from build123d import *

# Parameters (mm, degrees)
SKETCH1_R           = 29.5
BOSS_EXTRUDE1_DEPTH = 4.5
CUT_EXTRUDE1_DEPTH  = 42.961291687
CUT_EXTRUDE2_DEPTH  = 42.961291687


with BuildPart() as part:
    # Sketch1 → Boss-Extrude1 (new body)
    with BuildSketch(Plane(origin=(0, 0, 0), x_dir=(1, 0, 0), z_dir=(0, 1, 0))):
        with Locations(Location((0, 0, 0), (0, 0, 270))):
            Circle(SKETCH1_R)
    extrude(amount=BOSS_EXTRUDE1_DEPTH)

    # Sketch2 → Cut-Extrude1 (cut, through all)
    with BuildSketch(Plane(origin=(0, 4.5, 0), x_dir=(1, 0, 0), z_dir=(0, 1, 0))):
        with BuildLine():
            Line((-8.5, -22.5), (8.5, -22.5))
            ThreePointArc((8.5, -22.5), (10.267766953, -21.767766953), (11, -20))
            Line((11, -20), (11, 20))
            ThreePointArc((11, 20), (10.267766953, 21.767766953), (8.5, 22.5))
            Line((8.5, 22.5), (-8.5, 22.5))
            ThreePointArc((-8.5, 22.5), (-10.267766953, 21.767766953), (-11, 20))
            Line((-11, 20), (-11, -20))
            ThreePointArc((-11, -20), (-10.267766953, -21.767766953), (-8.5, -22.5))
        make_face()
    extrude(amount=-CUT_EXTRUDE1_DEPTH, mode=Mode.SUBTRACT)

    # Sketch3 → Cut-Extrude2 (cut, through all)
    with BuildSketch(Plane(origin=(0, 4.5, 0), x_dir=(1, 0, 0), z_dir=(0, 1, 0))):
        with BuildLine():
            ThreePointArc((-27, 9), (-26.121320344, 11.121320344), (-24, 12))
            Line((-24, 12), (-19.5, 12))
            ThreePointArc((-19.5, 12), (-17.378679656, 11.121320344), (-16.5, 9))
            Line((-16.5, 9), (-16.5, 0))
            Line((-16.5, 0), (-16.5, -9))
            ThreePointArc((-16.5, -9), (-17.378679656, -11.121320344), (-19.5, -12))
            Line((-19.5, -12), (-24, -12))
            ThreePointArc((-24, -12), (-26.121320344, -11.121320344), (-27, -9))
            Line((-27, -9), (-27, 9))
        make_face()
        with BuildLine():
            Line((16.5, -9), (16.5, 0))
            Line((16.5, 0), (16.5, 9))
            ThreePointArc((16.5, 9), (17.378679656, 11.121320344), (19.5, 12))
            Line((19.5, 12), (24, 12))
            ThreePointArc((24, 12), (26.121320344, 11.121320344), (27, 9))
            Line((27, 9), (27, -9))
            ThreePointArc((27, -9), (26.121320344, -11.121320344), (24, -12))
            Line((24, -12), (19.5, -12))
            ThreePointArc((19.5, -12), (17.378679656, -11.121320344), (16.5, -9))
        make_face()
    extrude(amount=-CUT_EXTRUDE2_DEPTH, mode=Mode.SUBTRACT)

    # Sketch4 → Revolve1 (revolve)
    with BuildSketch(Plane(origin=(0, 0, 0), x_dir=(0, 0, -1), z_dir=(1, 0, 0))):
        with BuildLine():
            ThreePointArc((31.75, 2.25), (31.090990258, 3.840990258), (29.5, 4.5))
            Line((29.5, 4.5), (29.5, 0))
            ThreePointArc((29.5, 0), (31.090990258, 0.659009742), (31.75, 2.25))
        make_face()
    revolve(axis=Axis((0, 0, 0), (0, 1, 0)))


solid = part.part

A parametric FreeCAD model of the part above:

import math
import FreeCAD as App
import Part
import Sketcher
from FreeCAD import Vector
Q = App.Units.Quantity

doc = App.newDocument("Part")
body = doc.addObject("PartDesign::Body", "Body")

sketch1 = body.newObject("Sketcher::SketchObject", "Sketch")
sketch1.AttachmentSupport = (doc.getObject("XZ_Plane"), [""])
sketch1.MapMode = "FlatFace"
sketch1.addGeometry(Part.Circle(Vector(0, 0, 0), Vector(0, 0, 1), 30), False)
sketch1.addConstraint(Sketcher.Constraint("Coincident", 0, 3, -1, 1))
sketch1.addConstraint(Sketcher.Constraint("Diameter", 0, Q("59 mm")))
pad1 = body.newObject("PartDesign::Pad", "Pad")
pad1.Profile = sketch1
pad1.Length = 4.5
pad1.Reversed = True

sketch2 = body.newObject("Sketcher::SketchObject", "Sketch001")
sketch2.AttachmentSupport = (doc.getObject("XZ_Plane"), [""])
sketch2.MapMode = "FlatFace"
sketch2.AttachmentOffset = App.Placement(Vector(0, 0, -4.5), App.Rotation())
sketch2.addGeometry(Part.LineSegment(Vector(-8.5, 22.5, 0), Vector(8.5, 22.5, 0)), False)
sketch2.addGeometry(Part.ArcOfCircle(Part.Circle(Vector(8.5, 20, 0), Vector(0, 0, 1), 2.5), math.radians(0), math.radians(90)), False)
sketch2.addGeometry(Part.LineSegment(Vector(11, 20, 0), Vector(11, -20, 0)), False)
sketch2.addGeometry(Part.ArcOfCircle(Part.Circle(Vector(8.5, -20, 0), Vector(0, 0, 1), 2.5), math.radians(-90), math.radians(0)), False)
sketch2.addGeometry(Part.LineSegment(Vector(8.5, -22.5, 0), Vector(-8.5, -22.5, 0)), False)
sketch2.addGeometry(Part.ArcOfCircle(Part.Circle(Vector(-8.5, -20, 0), Vector(0, 0, 1), 2.5), math.radians(180), math.radians(270)), False)
sketch2.addGeometry(Part.LineSegment(Vector(-11, -20, 0), Vector(-11, 20, 0)), False)
sketch2.addGeometry(Part.ArcOfCircle(Part.Circle(Vector(-8.5, 20, 0), Vector(0, 0, 1), 2.5), math.radians(90), math.radians(180)), False)
sketch2.addConstraint(Sketcher.Constraint("Tangent", 0, 2, 1, 2))
sketch2.addConstraint(Sketcher.Constraint("Tangent", 1, 1, 2, 1))
sketch2.addConstraint(Sketcher.Constraint("Tangent", 2, 2, 3, 2))
sketch2.addConstraint(Sketcher.Constraint("Tangent", 3, 1, 4, 1))
sketch2.addConstraint(Sketcher.Constraint("Tangent", 4, 2, 5, 2))
sketch2.addConstraint(Sketcher.Constraint("Tangent", 5, 1, 6, 1))
sketch2.addConstraint(Sketcher.Constraint("Tangent", 6, 2, 7, 2))
sketch2.addConstraint(Sketcher.Constraint("Tangent", 7, 1, 0, 1))
sketch2.addConstraint(Sketcher.Constraint("Horizontal", 0))
sketch2.addConstraint(Sketcher.Constraint("Vertical", 2))
sketch2.addConstraint(Sketcher.Constraint("Horizontal", 4))
sketch2.addConstraint(Sketcher.Constraint("Vertical", 6))
sketch2.addConstraint(Sketcher.Constraint("Equal", 1, 3))
sketch2.addConstraint(Sketcher.Constraint("Equal", 3, 5))
sketch2.addConstraint(Sketcher.Constraint("Equal", 5, 7))
sketch2.addConstraint(Sketcher.Constraint("Symmetric", 1, 3, 5, 3, -1, 1))
sketch2.addConstraint(Sketcher.Constraint("Radius", 1, Q("2.5 mm")))
sketch2.addConstraint(Sketcher.Constraint("DistanceX", 0, 1, 0, 2, Q("17 mm")))
sketch2.addConstraint(Sketcher.Constraint("DistanceY", 2, 2, 2, 1, Q("40 mm")))
pocket1 = body.newObject("PartDesign::Pocket", "Pocket")
pocket1.Profile = sketch2
pocket1.Type = "ThroughAll"
pocket1.Reversed = True

sketch3 = body.newObject("Sketcher::SketchObject", "Sketch002")
sketch3.AttachmentSupport = (doc.getObject("XZ_Plane"), [""])
sketch3.MapMode = "FlatFace"
sketch3.AttachmentOffset = App.Placement(Vector(0, 0, -4.5), App.Rotation())
sketch3.addGeometry(Part.ArcOfCircle(Part.Circle(Vector(-24, -9, 0), Vector(0, 0, 1), 3), math.radians(180), math.radians(270)), False)
sketch3.addGeometry(Part.LineSegment(Vector(-27, -9, 0), Vector(-27, 9, 0)), False)
sketch3.addGeometry(Part.ArcOfCircle(Part.Circle(Vector(-24, 9, 0), Vector(0, 0, 1), 3), math.radians(90), math.radians(180)), False)
sketch3.addGeometry(Part.LineSegment(Vector(-24, 12, 0), Vector(-19.5, 12, 0)), False)
sketch3.addGeometry(Part.ArcOfCircle(Part.Circle(Vector(-19.5, 9, 0), Vector(0, 0, 1), 3), math.radians(0), math.radians(90)), False)
sketch3.addGeometry(Part.LineSegment(Vector(-16.5, 9, 0), Vector(-16.5, -9, 0)), False)
sketch3.addGeometry(Part.ArcOfCircle(Part.Circle(Vector(-19.5, -9, 0), Vector(0, 0, 1), 3), math.radians(-90), math.radians(0)), False)
sketch3.addGeometry(Part.LineSegment(Vector(-19.5, -12, 0), Vector(-24, -12, 0)), False)
sketch3.addGeometry(Part.LineSegment(Vector(16.5, -9, 0), Vector(16.5, 9, 0)), False)
sketch3.addGeometry(Part.ArcOfCircle(Part.Circle(Vector(19.5, 9, 0), Vector(0, 0, 1), 3), math.radians(90), math.radians(180)), False)
sketch3.addGeometry(Part.LineSegment(Vector(19.5, 12, 0), Vector(24, 12, 0)), False)
sketch3.addGeometry(Part.ArcOfCircle(Part.Circle(Vector(24, 9, 0), Vector(0, 0, 1), 3), math.radians(0), math.radians(90)), False)
sketch3.addGeometry(Part.LineSegment(Vector(27, 9, 0), Vector(27, -9, 0)), False)
sketch3.addGeometry(Part.ArcOfCircle(Part.Circle(Vector(24, -9, 0), Vector(0, 0, 1), 3), math.radians(-90), math.radians(0)), False)
sketch3.addGeometry(Part.LineSegment(Vector(24, -12, 0), Vector(19.5, -12, 0)), False)
sketch3.addGeometry(Part.ArcOfCircle(Part.Circle(Vector(19.5, -9, 0), Vector(0, 0, 1), 3), math.radians(180), math.radians(270)), False)
sketch3.addConstraint(Sketcher.Constraint("Tangent", 0, 1, 1, 1))
sketch3.addConstraint(Sketcher.Constraint("Tangent", 1, 2, 2, 2))
sketch3.addConstraint(Sketcher.Constraint("Tangent", 2, 1, 3, 1))
sketch3.addConstraint(Sketcher.Constraint("Tangent", 3, 2, 4, 2))
sketch3.addConstraint(Sketcher.Constraint("Tangent", 4, 1, 5, 1))
sketch3.addConstraint(Sketcher.Constraint("Tangent", 5, 2, 6, 2))
sketch3.addConstraint(Sketcher.Constraint("Tangent", 6, 1, 7, 1))
sketch3.addConstraint(Sketcher.Constraint("Tangent", 7, 2, 0, 2))
sketch3.addConstraint(Sketcher.Constraint("Tangent", 8, 2, 9, 2))
sketch3.addConstraint(Sketcher.Constraint("Tangent", 9, 1, 10, 1))
sketch3.addConstraint(Sketcher.Constraint("Tangent", 10, 2, 11, 2))
sketch3.addConstraint(Sketcher.Constraint("Tangent", 11, 1, 12, 1))
sketch3.addConstraint(Sketcher.Constraint("Tangent", 12, 2, 13, 2))
sketch3.addConstraint(Sketcher.Constraint("Tangent", 13, 1, 14, 1))
sketch3.addConstraint(Sketcher.Constraint("Tangent", 14, 2, 15, 2))
sketch3.addConstraint(Sketcher.Constraint("Tangent", 15, 1, 8, 1))
sketch3.addConstraint(Sketcher.Constraint("Vertical", 1))
sketch3.addConstraint(Sketcher.Constraint("Horizontal", 3))
sketch3.addConstraint(Sketcher.Constraint("Vertical", 5))
sketch3.addConstraint(Sketcher.Constraint("Horizontal", 7))
sketch3.addConstraint(Sketcher.Constraint("Vertical", 8))
sketch3.addConstraint(Sketcher.Constraint("Horizontal", 10))
sketch3.addConstraint(Sketcher.Constraint("Vertical", 12))
sketch3.addConstraint(Sketcher.Constraint("Horizontal", 14))
sketch3.addConstraint(Sketcher.Constraint("Equal", 0, 2))
sketch3.addConstraint(Sketcher.Constraint("Equal", 2, 4))
sketch3.addConstraint(Sketcher.Constraint("Equal", 4, 6))
sketch3.addConstraint(Sketcher.Constraint("Equal", 6, 9))
sketch3.addConstraint(Sketcher.Constraint("Equal", 9, 11))
sketch3.addConstraint(Sketcher.Constraint("Equal", 11, 13))
sketch3.addConstraint(Sketcher.Constraint("Equal", 13, 15))
sketch3.addConstraint(Sketcher.Constraint("Symmetric", 6, 3, 9, 3, -1, 1))
sketch3.addConstraint(Sketcher.Constraint("Symmetric", 2, 3, 13, 3, -1, 1))
sketch3.addConstraint(Sketcher.Constraint("Horizontal", 4, 3, 9, 3))
sketch3.addConstraint(Sketcher.Constraint("Radius", 0, Q("3 mm")))
sketch3.addConstraint(Sketcher.Constraint("DistanceY", 1, 1, 1, 2, Q("18 mm")))
sketch3.addConstraint(Sketcher.Constraint("DistanceX", 3, 1, 3, 2, Q("4.5 mm")))
sketch3.addConstraint(Sketcher.Constraint("DistanceX", 0, 3, -1, 1, Q("24 mm")))
pocket2 = body.newObject("PartDesign::Pocket", "Pocket001")
pocket2.Profile = sketch3
pocket2.Type = "ThroughAll"
pocket2.Reversed = True

sketch4 = body.newObject("Sketcher::SketchObject", "Sketch003")
sketch4.AttachmentSupport = (doc.getObject("YZ_Plane"), [""])
sketch4.MapMode = "FlatFace"
sketch4.addGeometry(Part.ArcOfCircle(Part.Circle(Vector(2.3, -29.5, 0), Vector(0, 0, 1), 2.2), math.radians(-90), math.radians(0)), False)
sketch4.addGeometry(Part.LineSegment(Vector(4.5, -29.5, 0), Vector(0, -29.5, 0)), False)
sketch4.addGeometry(Part.ArcOfCircle(Part.Circle(Vector(2.2, -29.5, 0), Vector(0, 0, 1), 2.2), math.radians(180), math.radians(270)), False)
sketch4.addConstraint(Sketcher.Constraint("Coincident", 0, 2, 1, 1))
sketch4.addConstraint(Sketcher.Constraint("Coincident", 1, 2, 2, 1))
sketch4.addConstraint(Sketcher.Constraint("Tangent", 2, 2, 0, 1))
sketch4.addConstraint(Sketcher.Constraint("Horizontal", 1))
sketch4.addConstraint(Sketcher.Constraint("Equal", 0, 2))
sketch4.addConstraint(Sketcher.Constraint("PointOnObject", 1, 2, -2))
sketch4.addConstraint(Sketcher.Constraint("Horizontal", 2, 3, 0, 2))
sketch4.addConstraint(Sketcher.Constraint("Vertical", 0, 3, 2, 2))
sketch4.addConstraint(Sketcher.Constraint("Radius", 0, Q("2.25 mm")))
sketch4.addConstraint(Sketcher.Constraint("DistanceY", 0, 3, -1, 1, Q("29.5 mm")))
revolution = body.newObject("PartDesign::Revolution", "Revolution")
revolution.Profile = sketch4
revolution.ReferenceAxis = (sketch4, ["H_Axis"])
revolution.Angle = 360

doc.recompute()
